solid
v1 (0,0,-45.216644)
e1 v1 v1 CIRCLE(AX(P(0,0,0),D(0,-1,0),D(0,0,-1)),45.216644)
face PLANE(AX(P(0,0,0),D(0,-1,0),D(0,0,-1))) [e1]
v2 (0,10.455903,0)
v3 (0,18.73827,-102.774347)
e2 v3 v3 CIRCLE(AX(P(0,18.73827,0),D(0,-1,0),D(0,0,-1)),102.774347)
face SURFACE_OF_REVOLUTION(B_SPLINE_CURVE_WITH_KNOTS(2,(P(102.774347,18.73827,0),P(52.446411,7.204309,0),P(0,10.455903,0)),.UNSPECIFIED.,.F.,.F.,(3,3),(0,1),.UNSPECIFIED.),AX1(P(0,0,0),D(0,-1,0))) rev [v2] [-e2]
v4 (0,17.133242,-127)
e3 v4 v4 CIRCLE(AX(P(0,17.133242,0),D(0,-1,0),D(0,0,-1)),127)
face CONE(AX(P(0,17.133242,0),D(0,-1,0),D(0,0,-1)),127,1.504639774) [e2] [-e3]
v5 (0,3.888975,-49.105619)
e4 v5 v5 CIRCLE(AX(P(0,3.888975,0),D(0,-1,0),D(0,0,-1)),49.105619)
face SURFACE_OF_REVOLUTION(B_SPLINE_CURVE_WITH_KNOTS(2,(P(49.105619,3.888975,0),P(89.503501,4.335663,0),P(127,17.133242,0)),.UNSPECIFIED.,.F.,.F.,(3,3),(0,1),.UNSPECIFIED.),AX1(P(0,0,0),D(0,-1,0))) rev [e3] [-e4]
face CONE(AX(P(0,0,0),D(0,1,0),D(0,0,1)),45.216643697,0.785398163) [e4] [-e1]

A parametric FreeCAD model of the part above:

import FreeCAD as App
import Part
import Sketcher
from FreeCAD import Vector
Q = App.Units.Quantity

doc = App.newDocument("Part")
body = doc.addObject("PartDesign::Body", "Body")

sketch1 = doc.addObject("Sketcher::SketchObject", "Sketch")
body.addObject(sketch1)
sketch1.AttachmentSupport = (doc.XY_Plane, [""])
sketch1.MapMode = "FlatFace"
sketch1.addGeometry(Part.LineSegment(Vector(45.216644, 0, 0), Vector(49.105619, 3.888975, 0)), False)
sketch1.addGeometry(Part.BSplineCurve([Vector(49.105619, 3.888975, 0), Vector(89.503501, 4.335663, 0), Vector(127, 17.133242, 0)], [3, 3], [0, 1], False, 2, [1, 1, 1], False), False)
sketch1.addGeometry(Part.LineSegment(Vector(127, 17.133242, 0), Vector(102.774347, 18.73827, 0)), False)
sketch1.addGeometry(Part.BSplineCurve([Vector(0, 10.455903, 0), Vector(52.446411, 7.204309, 0), Vector(102.774347, 18.73827, 0)], [3, 3], [0, 1], False, 2, [1, 1, 1], False), False)
sketch1.addGeometry(Part.LineSegment(Vector(0, 10.455903, 0), Vector(0, 0, 0)), False)
sketch1.addGeometry(Part.LineSegment(Vector(0, 0, 0), Vector(45.216644, 0, 0)), False)
sketch1.addConstraint(Sketcher.Constraint("Block", 1))
sketch1.addConstraint(Sketcher.Constraint("Block", 3))
sketch1.addConstraint(Sketcher.Constraint("Coincident", 0, 2, 1, 1))
sketch1.addConstraint(Sketcher.Constraint("Coincident", 1, 2, 2, 1))
sketch1.addConstraint(Sketcher.Constraint("Coincident", 2, 2, 3, 2))
sketch1.addConstraint(Sketcher.Constraint("Coincident", 3, 1, 4, 1))
sketch1.addConstraint(Sketcher.Constraint("Coincident", 4, 2, 5, 1))
sketch1.addConstraint(Sketcher.Constraint("Coincident", 5, 2, 0, 1))
sketch1.addConstraint(Sketcher.Constraint("Vertical", 4))
sketch1.addConstraint(Sketcher.Constraint("Horizontal", 5))
sketch1.addConstraint(Sketcher.Constraint("PointOnObject", 5, 2, -1))
sketch1.addConstraint(Sketcher.Constraint("Angle", 0, Q("45 deg")))
revolution = doc.addObject("PartDesign::Revolution", "Revolution")
body.addObject(revolution)
revolution.Profile = sketch1
revolution.ReferenceAxis = (sketch1, ["V_Axis"])
revolution.Angle = 360

doc.recompute()
